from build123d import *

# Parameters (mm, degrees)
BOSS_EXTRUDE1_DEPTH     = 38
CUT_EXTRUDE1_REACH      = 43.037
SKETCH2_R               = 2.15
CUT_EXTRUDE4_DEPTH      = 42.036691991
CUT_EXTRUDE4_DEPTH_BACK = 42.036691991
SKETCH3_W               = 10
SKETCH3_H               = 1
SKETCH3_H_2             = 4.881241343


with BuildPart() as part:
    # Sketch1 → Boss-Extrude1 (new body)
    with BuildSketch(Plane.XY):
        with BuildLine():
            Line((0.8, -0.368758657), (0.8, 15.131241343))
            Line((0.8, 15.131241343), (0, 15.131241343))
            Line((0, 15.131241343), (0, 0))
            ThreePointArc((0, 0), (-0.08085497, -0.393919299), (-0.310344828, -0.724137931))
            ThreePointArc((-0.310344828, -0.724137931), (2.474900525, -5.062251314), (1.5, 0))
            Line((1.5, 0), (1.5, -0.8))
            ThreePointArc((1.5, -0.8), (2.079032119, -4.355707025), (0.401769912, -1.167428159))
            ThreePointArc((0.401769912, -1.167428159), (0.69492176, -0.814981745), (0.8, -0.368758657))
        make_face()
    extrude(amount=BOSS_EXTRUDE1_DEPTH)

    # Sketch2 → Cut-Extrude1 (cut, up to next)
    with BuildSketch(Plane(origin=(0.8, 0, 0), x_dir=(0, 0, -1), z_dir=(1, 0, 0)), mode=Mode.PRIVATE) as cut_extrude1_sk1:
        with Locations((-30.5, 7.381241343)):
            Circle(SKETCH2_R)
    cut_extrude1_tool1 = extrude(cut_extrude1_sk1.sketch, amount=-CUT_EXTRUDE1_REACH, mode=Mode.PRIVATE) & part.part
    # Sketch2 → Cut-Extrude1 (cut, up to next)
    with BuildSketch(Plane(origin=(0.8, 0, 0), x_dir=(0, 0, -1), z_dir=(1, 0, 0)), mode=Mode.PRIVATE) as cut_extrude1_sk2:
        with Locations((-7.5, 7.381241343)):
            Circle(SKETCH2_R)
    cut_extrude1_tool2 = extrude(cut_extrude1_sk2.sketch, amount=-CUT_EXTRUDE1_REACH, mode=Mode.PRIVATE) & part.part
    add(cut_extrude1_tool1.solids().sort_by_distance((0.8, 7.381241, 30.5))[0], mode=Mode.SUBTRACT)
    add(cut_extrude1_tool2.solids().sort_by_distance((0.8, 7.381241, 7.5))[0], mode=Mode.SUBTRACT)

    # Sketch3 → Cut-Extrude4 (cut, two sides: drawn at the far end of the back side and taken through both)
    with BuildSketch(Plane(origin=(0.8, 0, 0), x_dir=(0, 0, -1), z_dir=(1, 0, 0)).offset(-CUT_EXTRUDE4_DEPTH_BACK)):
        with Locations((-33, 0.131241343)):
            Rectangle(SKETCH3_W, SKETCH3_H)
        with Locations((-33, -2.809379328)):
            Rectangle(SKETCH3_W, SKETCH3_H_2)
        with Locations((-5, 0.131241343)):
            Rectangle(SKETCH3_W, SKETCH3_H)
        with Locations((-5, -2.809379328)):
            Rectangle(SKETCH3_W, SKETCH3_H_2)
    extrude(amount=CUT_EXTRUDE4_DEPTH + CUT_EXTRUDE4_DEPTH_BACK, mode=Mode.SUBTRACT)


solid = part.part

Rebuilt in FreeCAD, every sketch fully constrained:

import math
import FreeCAD as App
import Part
import Sketcher

V = App.Vector
Q = App.Units.Quantity

doc = App.newDocument("Part")
body = doc.addObject("PartDesign::Body", "Body")

# Sketch on XY plane
sketch1 = body.newObject("Sketcher::SketchObject", "Sketch")
sketch1.AttachmentSupport = (doc.getObject("XY_Plane"), [""])
sketch1.MapMode = "FlatFace"
sketch1.addGeometry(Part.LineSegment(V(0.8, -0.4, 0), V(0.8, 15.1, 0)), False)
sketch1.addGeometry(Part.LineSegment(V(0.8, 15.1, 0), V(0, 15.1, 0)), False)
sketch1.addGeometry(Part.LineSegment(V(0, 15.1, 0), V(0, 0, 0)), False)
sketch1.addGeometry(Part.ArcOfCircle(Part.Circle(V(-1, 0, 0), V(0, 0, 1), 1), math.radians(-46), math.radians(0)), False)
sketch1.addGeometry(Part.ArcOfCircle(Part.Circle(V(1.5, -2.6, 0), V(0, 0, 1), 2.6), math.radians(134), math.radians(450)), False)
sketch1.addGeometry(Part.LineSegment(V(1.5, 0, 0), V(1.5, -0.8, 0)), False)
sketch1.addGeometry(Part.ArcOfCircle(Part.Circle(V(1.5, -2.6, 0), V(0, 0, 1), 1.8), math.radians(127), math.radians(450)), False)
sketch1.addGeometry(Part.ArcOfCircle(Part.Circle(V(-0.2, -0.4, 0), V(0, 0, 1), 1), math.radians(-53), math.radians(0)), False)
sketch1.addConstraint(Sketcher.Constraint("Coincident", 0, 2, 1, 1))
sketch1.addConstraint(Sketcher.Constraint("Coincident", 1, 2, 2, 1))
sketch1.addConstraint(Sketcher.Constraint("Tangent", 2, 2, 3, 2))
sketch1.addConstraint(Sketcher.Constraint("Tangent", 3, 1, 4, 1))
sketch1.addConstraint(Sketcher.Constraint("Coincident", 4, 2, 5, 1))
sketch1.addConstraint(Sketcher.Constraint("Coincident", 5, 2, 6, 2))
sketch1.addConstraint(Sketcher.Constraint("Tangent", 6, 1, 7, 1))
sketch1.addConstraint(Sketcher.Constraint("Tangent", 7, 2, 0, 1))
sketch1.addConstraint(Sketcher.Constraint("Vertical", 0))
sketch1.addConstraint(Sketcher.Constraint("Horizontal", 1))
sketch1.addConstraint(Sketcher.Constraint("Vertical", 2))
sketch1.addConstraint(Sketcher.Constraint("Vertical", 5))
sketch1.addConstraint(Sketcher.Constraint("Coincident", 2, 2, -1, 1))
sketch1.addConstraint(Sketcher.Constraint("Coincident", 6, 3, 4, 3))
sketch1.addConstraint(Sketcher.Constraint("Equal", 3, 7))
sketch1.addConstraint(Sketcher.Constraint("PointOnObject", 4, 2, -1))
sketch1.addConstraint(Sketcher.Constraint("Vertical", 6, 3, 4, 2))
sketch1.addConstraint(Sketcher.Constraint("Equal", 1, 5))
sketch1.addConstraint(Sketcher.Constraint("Radius", 3, Q("1 mm")))
sketch1.addConstraint(Sketcher.Constraint("DistanceX", 1, 2, 1, 1, Q("0.8 mm")))
sketch1.addConstraint(Sketcher.Constraint("DistanceY", 0, 1, 0, 2, Q("15.5 mm")))
sketch1.addConstraint(Sketcher.Constraint("Radius", 4, Q("2.625 mm")))
pad1 = body.newObject("PartDesign::Pad", "Pad")
pad1.Profile = sketch1
pad1.Length = 38

# Sketch on YZ plane
sketch2 = body.newObject("Sketcher::SketchObject", "Sketch001")
sketch2.AttachmentSupport = (doc.getObject("YZ_Plane"), [""])
sketch2.MapMode = "FlatFace"
sketch2.AttachmentOffset = App.Placement(V(0, 0, 0.8), App.Rotation())
sketch2.addGeometry(Part.Circle(V(7.4, 30.5, 0), V(0, 0, 1), 2.1), False)
sketch2.addConstraint(Sketcher.Constraint("Diameter", 0, Q("4.3 mm")))
sketch2.addConstraint(Sketcher.Constraint("DistanceY", -1, 1, 0, 3, Q("30.5 mm")))
sketch2.addConstraint(Sketcher.Constraint("DistanceX", -1, 1, 0, 3, Q("7.381241 mm")))
pocket1 = body.newObject("PartDesign::Pocket", "Pocket")
pocket1.Profile = sketch2
pocket1.Type = "UpToFirst"

# Sketch on YZ plane
sketch3 = body.newObject("Sketcher::SketchObject", "Sketch002")
sketch3.AttachmentSupport = (doc.getObject("YZ_Plane"), [""])
sketch3.MapMode = "FlatFace"
sketch3.AttachmentOffset = App.Placement(V(0, 0, 0.8), App.Rotation())
sketch3.addGeometry(Part.Circle(V(7.4, 7.5, 0), V(0, 0, 1), 2.1), False)
sketch3.addConstraint(Sketcher.Constraint("Diameter", 0, Q("4.3 mm")))
sketch3.addConstraint(Sketcher.Constraint("DistanceY", -1, 1, 0, 3, Q("7.5 mm")))
sketch3.addConstraint(Sketcher.Constraint("DistanceX", -1, 1, 0, 3, Q("7.381241 mm")))
pocket2 = body.newObject("PartDesign::Pocket", "Pocket001")
pocket2.Profile = sketch3
pocket2.Type = "UpToFirst"

# Sketch on YZ plane
sketch4 = body.newObject("Sketcher::SketchObject", "Sketch003")
sketch4.AttachmentSupport = (doc.getObject("YZ_Plane"), [""])
sketch4.MapMode = "FlatFace"
sketch4.AttachmentOffset = App.Placement(V(0, 0, 0.8), App.Rotation())
sketch4.addGeometry(Part.LineSegment(V(1, 38, 0), V(-5, 38, 0)), False)
sketch4.addGeometry(Part.LineSegment(V(-5, 38, 0), V(-5, 28, 0)), False)
sketch4.addGeometry(Part.LineSegment(V(-5, 28, 0), V(1, 28, 0)), False)
sketch4.addGeometry(Part.LineSegment(V(1, 28, 0), V(1, 38, 0)), False)
sketch4.addGeometry(Part.LineSegment(V(1, 10, 0), V(-5, 10, 0)), False)
sketch4.addGeometry(Part.LineSegment(V(-5, 10, 0), V(-5, 0, 0)), False)
sketch4.addGeometry(Part.LineSegment(V(-5, 0, 0), V(1, 0, 0)), False)
sketch4.addGeometry(Part.LineSegment(V(1, 0, 0), V(1, 10, 0)), False)
sketch4.addConstraint(Sketcher.Constraint("Coincident", 0, 2, 1, 1))
sketch4.addConstraint(Sketcher.Constraint("Coincident", 1, 2, 2, 1))
sketch4.addConstraint(Sketcher.Constraint("Coincident", 2, 2, 3, 1))
sketch4.addConstraint(Sketcher.Constraint("Coincident", 3, 2, 0, 1))
sketch4.addConstraint(Sketcher.Constraint("Coincident", 4, 2, 5, 1))
sketch4.addConstraint(Sketcher.Constraint("Coincident", 5, 2, 6, 1))
sketch4.addConstraint(Sketcher.Constraint("Coincident", 6, 2, 7, 1))
sketch4.addConstraint(Sketcher.Constraint("Coincident", 7, 2, 4, 1))
sketch4.addConstraint(Sketcher.Constraint("Horizontal", 0))
sketch4.addConstraint(Sketcher.Constraint("Vertical", 1))
sketch4.addConstraint(Sketcher.Constraint("Horizontal", 2))
sketch4.addConstraint(Sketcher.Constraint("Vertical", 3))
sketch4.addConstraint(Sketcher.Constraint("Horizontal", 4))
sketch4.addConstraint(Sketcher.Constraint("Vertical", 5))
sketch4.addConstraint(Sketcher.Constraint("Horizontal", 6))
sketch4.addConstraint(Sketcher.Constraint("Vertical", 7))
sketch4.addConstraint(Sketcher.Constraint("PointOnObject", 5, 2, -1))
sketch4.addConstraint(Sketcher.Constraint("Vertical", 1, 2, 4, 2))
sketch4.addConstraint(Sketcher.Constraint("Vertical", 3, 2, 6, 2))
sketch4.addConstraint(Sketcher.Constraint("Equal", 3, 5))
sketch4.addConstraint(Sketcher.Constraint("DistanceY", 1, 2, 1, 1, Q("10 mm")))
sketch4.addConstraint(Sketcher.Constraint("DistanceY", -1, 1, 0, 2, Q("38 mm")))
sketch4.addConstraint(Sketcher.Constraint("DistanceX", 0, 2, -1, 1, Q("5.25 mm")))
sketch4.addConstraint(Sketcher.Constraint("DistanceX", 0, 2, 0, 1, Q("5.881241 mm")))
pocket3 = body.newObject("PartDesign::Pocket", "Pocket002")
pocket3.Profile = sketch4
pocket3.Type = "ThroughAll"
pocket3.Midplane = True

doc.recompute()
